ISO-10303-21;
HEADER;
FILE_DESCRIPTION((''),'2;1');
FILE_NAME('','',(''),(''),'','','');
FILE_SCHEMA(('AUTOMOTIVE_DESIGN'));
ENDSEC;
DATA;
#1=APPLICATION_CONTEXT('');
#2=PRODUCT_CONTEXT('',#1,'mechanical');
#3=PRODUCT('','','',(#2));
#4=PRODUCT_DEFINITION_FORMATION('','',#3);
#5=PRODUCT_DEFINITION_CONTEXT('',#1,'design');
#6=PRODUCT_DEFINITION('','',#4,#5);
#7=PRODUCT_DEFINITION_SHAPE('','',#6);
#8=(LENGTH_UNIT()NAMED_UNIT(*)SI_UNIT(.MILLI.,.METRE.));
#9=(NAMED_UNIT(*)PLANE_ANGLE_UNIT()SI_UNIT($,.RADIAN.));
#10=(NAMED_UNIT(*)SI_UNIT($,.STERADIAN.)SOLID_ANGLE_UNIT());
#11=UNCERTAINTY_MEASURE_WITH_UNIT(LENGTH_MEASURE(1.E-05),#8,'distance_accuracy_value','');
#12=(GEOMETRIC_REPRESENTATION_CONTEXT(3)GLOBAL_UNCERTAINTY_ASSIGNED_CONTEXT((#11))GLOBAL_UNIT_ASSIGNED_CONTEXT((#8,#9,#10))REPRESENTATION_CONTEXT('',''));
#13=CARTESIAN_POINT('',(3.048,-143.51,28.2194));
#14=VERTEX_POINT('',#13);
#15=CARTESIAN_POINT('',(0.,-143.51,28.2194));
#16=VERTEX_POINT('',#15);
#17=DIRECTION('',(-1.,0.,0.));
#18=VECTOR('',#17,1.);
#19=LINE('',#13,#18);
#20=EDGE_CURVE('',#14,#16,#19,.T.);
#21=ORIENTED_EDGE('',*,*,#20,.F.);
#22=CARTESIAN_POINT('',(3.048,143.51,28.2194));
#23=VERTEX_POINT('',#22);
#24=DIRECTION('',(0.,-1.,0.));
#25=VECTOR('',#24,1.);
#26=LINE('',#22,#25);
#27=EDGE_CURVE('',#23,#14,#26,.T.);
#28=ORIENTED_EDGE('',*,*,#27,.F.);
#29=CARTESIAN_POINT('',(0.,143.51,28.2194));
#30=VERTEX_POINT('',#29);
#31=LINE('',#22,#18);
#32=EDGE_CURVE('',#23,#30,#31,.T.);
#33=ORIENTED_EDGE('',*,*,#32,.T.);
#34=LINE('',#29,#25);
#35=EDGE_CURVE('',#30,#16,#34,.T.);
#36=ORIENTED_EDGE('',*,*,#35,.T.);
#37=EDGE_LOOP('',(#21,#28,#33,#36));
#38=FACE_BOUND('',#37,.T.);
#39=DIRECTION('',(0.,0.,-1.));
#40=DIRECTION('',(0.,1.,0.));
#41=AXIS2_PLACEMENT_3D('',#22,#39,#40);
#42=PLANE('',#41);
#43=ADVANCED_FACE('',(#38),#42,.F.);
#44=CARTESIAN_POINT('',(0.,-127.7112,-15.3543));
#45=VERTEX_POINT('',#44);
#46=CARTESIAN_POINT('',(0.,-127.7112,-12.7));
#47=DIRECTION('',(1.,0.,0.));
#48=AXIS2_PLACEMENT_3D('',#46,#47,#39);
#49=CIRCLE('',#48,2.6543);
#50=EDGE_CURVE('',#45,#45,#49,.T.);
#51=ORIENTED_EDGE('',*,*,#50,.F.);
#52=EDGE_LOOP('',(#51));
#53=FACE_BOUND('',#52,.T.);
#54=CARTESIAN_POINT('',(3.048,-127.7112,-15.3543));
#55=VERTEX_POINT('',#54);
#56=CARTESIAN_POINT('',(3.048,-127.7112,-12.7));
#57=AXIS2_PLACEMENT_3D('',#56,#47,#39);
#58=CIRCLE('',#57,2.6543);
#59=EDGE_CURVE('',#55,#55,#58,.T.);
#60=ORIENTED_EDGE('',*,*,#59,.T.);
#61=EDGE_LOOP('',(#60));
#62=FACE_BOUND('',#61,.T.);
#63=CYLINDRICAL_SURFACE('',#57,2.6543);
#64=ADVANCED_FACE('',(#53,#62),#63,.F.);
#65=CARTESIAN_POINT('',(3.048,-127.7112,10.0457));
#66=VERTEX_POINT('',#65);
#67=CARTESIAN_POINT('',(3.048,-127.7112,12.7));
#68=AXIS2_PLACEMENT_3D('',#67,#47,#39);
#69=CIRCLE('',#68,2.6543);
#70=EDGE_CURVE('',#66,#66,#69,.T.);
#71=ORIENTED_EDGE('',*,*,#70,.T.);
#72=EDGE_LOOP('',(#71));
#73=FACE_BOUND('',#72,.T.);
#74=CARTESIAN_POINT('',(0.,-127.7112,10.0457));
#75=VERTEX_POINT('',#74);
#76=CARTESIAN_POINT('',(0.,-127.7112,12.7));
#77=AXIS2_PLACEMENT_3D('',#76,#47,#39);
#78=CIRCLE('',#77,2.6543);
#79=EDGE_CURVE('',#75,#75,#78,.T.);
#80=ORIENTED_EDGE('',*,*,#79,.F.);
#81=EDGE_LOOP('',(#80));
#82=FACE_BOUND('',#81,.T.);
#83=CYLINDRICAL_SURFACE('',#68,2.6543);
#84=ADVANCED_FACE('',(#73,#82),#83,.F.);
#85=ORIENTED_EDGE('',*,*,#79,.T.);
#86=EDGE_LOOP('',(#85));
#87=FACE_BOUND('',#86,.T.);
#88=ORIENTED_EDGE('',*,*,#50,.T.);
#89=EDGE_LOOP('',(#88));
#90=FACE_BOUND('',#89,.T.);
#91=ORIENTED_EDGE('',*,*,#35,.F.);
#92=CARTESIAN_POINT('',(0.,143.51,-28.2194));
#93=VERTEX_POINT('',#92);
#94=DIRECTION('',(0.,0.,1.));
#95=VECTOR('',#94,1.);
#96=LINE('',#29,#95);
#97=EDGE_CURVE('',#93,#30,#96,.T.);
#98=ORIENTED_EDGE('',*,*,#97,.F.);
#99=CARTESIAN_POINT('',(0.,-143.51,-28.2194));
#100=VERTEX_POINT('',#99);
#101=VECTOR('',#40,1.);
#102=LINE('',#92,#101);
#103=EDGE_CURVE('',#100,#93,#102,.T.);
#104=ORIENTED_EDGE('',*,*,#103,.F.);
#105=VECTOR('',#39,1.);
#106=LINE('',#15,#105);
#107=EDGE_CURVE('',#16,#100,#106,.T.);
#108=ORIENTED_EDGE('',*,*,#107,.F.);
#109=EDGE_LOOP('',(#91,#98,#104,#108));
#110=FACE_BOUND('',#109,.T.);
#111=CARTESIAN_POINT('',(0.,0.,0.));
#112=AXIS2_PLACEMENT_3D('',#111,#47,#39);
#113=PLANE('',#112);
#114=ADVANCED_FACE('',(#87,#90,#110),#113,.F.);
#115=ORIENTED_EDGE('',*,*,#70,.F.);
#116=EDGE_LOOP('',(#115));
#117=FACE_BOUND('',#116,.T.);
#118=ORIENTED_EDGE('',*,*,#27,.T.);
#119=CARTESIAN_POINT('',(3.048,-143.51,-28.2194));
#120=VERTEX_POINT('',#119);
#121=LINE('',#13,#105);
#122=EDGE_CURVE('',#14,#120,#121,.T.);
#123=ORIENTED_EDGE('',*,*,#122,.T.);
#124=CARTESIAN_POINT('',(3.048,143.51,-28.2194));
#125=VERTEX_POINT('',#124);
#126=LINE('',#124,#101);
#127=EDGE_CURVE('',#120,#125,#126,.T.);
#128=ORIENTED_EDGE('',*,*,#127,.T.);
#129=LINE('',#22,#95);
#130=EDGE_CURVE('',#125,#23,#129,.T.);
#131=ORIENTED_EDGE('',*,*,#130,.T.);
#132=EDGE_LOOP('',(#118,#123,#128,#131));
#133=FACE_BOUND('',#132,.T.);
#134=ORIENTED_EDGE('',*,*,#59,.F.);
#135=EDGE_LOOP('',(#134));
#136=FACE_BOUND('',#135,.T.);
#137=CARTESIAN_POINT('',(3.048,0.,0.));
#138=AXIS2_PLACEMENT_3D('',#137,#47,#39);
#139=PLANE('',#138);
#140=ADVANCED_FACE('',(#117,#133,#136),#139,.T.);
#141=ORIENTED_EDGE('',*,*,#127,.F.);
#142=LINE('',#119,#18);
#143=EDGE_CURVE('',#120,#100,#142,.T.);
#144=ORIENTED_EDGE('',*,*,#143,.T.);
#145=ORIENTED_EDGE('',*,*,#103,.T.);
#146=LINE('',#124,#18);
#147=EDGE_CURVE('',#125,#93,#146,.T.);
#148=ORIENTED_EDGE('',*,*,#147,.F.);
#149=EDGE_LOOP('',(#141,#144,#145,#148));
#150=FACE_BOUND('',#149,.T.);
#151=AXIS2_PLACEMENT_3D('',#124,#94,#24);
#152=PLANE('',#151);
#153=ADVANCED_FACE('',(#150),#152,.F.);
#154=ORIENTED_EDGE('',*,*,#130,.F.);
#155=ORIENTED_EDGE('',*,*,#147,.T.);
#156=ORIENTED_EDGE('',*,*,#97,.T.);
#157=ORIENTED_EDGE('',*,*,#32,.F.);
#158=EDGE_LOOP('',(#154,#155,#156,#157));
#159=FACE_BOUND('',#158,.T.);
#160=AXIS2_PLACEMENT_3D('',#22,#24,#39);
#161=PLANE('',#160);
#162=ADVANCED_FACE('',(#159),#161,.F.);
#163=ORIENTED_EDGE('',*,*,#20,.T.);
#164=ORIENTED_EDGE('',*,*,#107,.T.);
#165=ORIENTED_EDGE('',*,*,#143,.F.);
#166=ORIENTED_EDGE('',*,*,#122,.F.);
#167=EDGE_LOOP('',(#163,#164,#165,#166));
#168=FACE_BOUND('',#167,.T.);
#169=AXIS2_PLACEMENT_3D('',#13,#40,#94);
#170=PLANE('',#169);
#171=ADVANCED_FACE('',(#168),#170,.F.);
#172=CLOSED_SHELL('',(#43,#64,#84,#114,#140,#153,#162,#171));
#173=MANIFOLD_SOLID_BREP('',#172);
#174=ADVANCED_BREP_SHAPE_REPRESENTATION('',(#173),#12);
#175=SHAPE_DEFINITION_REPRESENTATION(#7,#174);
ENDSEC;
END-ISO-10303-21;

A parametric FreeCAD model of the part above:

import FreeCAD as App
import Part
import Sketcher
Q = App.Units.Quantity

doc = App.newDocument("Part")
body = doc.addObject("PartDesign::Body", "Body")

# Sketch on YZ plane
sketch1 = doc.addObject("Sketcher::SketchObject", "Sketch")
body.addObject(sketch1)
sketch1.AttachmentSupport = (doc.YZ_Plane, [""])
sketch1.MapMode = "FlatFace"
sketch1.addGeometry(Part.LineSegment(App.Vector(144, 28, 0), App.Vector(-144, 28, 0)), False)
sketch1.addGeometry(Part.LineSegment(App.Vector(-144, 28, 0), App.Vector(-144, -28, 0)), False)
sketch1.addGeometry(Part.LineSegment(App.Vector(-144, -28, 0), App.Vector(144, -28, 0)), False)
sketch1.addGeometry(Part.LineSegment(App.Vector(144, -28, 0), App.Vector(144, 28, 0)), False)
sketch1.addConstraint(Sketcher.Constraint("Coincident", 0, 2, 1, 1))
sketch1.addConstraint(Sketcher.Constraint("Coincident", 1, 2, 2, 1))
sketch1.addConstraint(Sketcher.Constraint("Coincident", 2, 2, 3, 1))
sketch1.addConstraint(Sketcher.Constraint("Coincident", 3, 2, 0, 1))
sketch1.addConstraint(Sketcher.Constraint("Horizontal", 0))
sketch1.addConstraint(Sketcher.Constraint("Vertical", 1))
sketch1.addConstraint(Sketcher.Constraint("Horizontal", 2))
sketch1.addConstraint(Sketcher.Constraint("Vertical", 3))
sketch1.addConstraint(Sketcher.Constraint("Symmetric", 0, 2, 2, 2, -1, 1))
sketch1.addConstraint(Sketcher.Constraint("DistanceX", 0, 2, 0, 1, Q("11.3 in")))
sketch1.addConstraint(Sketcher.Constraint("DistanceY", 1, 2, 1, 1, Q("2.222 in")))
pad1 = doc.addObject("PartDesign::Pad", "Pad")
body.addObject(pad1)
pad1.Profile = sketch1
pad1.Length = Q("0.12 in")

# Sketch on YZ plane
sketch2 = doc.addObject("Sketcher::SketchObject", "Sketch001")
body.addObject(sketch2)
sketch2.AttachmentSupport = (doc.YZ_Plane, [""])
sketch2.MapMode = "FlatFace"
sketch2.AttachmentOffset = App.Placement(App.Vector(0, 0, 0.12 * 25.4), App.Rotation())
sketch2.addGeometry(Part.Circle(App.Vector(-127.7, 12.7, 0), App.Vector(0, 0, 1), 2.7), False)
sketch2.addGeometry(Part.Circle(App.Vector(-127.7, -12.7, 0), App.Vector(0, 0, 1), 2.7), False)
sketch2.addConstraint(Sketcher.Constraint("Equal", 0, 1))
sketch2.addConstraint(Sketcher.Constraint("Symmetric", 0, 3, 1, 3, -1))
sketch2.addConstraint(Sketcher.Constraint("Diameter", 0, Q("0.209 in")))
sketch2.addConstraint(Sketcher.Constraint("DistanceY", 1, 3, 0, 3, Q("1 in")))
sketch2.addConstraint(Sketcher.Constraint("DistanceX", 0, 3, -1, 1, Q("5.028 in")))
doc.recompute()
hole = doc.addObject("PartDesign::Hole", "Hole")
body.addObject(hole)
hole.Profile = sketch2
hole.ThreadType = "None"
hole.Diameter = Q("0.209 in")
hole.DepthType = "ThroughAll"

doc.recompute()
